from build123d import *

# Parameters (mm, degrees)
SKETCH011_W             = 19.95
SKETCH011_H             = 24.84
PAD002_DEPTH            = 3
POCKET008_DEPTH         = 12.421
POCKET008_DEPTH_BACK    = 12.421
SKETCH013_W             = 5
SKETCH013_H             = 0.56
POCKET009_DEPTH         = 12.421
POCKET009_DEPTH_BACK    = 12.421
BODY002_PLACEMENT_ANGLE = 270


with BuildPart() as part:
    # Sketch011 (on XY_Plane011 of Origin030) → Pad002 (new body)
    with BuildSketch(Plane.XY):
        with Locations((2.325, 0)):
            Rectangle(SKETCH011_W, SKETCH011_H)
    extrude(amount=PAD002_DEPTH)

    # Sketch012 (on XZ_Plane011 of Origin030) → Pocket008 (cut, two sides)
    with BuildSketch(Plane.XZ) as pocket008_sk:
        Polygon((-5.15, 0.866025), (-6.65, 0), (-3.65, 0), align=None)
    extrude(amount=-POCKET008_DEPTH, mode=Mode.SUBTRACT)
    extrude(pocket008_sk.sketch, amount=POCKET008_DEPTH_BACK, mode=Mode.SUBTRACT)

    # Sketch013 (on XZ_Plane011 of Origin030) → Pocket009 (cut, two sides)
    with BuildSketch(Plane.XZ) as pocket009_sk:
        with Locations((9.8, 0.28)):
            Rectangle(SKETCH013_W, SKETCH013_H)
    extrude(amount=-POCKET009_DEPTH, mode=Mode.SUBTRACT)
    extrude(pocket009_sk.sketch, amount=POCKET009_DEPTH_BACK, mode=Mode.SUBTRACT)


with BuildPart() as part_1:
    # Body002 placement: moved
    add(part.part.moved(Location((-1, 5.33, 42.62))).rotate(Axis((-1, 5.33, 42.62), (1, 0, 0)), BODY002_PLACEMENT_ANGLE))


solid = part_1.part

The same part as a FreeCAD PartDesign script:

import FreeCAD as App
import Part
import Sketcher
from FreeCAD import Vector
Q = App.Units.Quantity

doc = App.newDocument("Part")
params = doc.addObject("Spreadsheet::Sheet", "Params")
for row, (alias, value) in enumerate([
    ("sketch1_width", "19.95 mm"),
    ("sketch1_height", "24.84 mm"),
    ("pad1_length", "3 mm"),
    ("sketch2_width", "3 mm"),
    ("sketch3_width", "5 mm"),
    ("sketch3_height", "0.56 mm"),
], start=1):
    params.set(f"A{row}", alias)
    params.set(f"B{row}", "=" + value)
    params.setAlias(f"B{row}", alias)

body = doc.addObject("PartDesign::Body", "Body")

# Sketch on XY plane
sketch1 = doc.addObject("Sketcher::SketchObject", "Sketch")
body.addObject(sketch1)
sketch1.AttachmentSupport = (doc.XY_Plane, [""])
sketch1.MapMode = "FlatFace"
sketch1.addGeometry([
    Part.LineSegment(Vector(-8, 12, 0), Vector(-8, -12, 0)),
    Part.LineSegment(Vector(-8, -12, 0), Vector(12, -12, 0)),
    Part.LineSegment(Vector(12, -12, 0), Vector(12, 12, 0)),
    Part.LineSegment(Vector(12, 12, 0), Vector(-8, 12, 0)),
], False)
sketch1.addConstraint([
    Sketcher.Constraint("Coincident", 0, 2, 1, 1),
    Sketcher.Constraint("Coincident", 1, 2, 2, 1),
    Sketcher.Constraint("Coincident", 2, 2, 3, 1),
    Sketcher.Constraint("Coincident", 3, 2, 0, 1),
    Sketcher.Constraint("Vertical", 0),
    Sketcher.Constraint("Horizontal", 1),
    Sketcher.Constraint("Vertical", 2),
    Sketcher.Constraint("Horizontal", 3),
    Sketcher.Constraint("DistanceX", 1, 1, 1, 2, 19.95),
    Sketcher.Constraint("DistanceY", 0, 2, 0, 1, 24.84),
    Sketcher.Constraint("DistanceX", -1, 1, 1, 2, 12.3),
    Sketcher.Constraint("DistanceY", 0, 2, -1, 1, 12.42),
])
sketch1.setExpression("Constraints[8]", "Params.sketch1_width")
sketch1.setExpression("Constraints[9]", "Params.sketch1_height")
pad1 = doc.addObject("PartDesign::Pad", "Pad")
body.addObject(pad1)
pad1.Profile = sketch1
pad1.setExpression("Length", "Params.pad1_length")

# Sketch on XZ plane
sketch2 = doc.addObject("Sketcher::SketchObject", "Sketch001")
body.addObject(sketch2)
sketch2.AttachmentSupport = (doc.XZ_Plane, [""])
sketch2.MapMode = "FlatFace"
sketch2.addGeometry([
    Part.LineSegment(Vector(-5.2, 0.9, 0), Vector(-6.7, 0, 0)),
    Part.LineSegment(Vector(-6.7, 0, 0), Vector(-3.6, 0, 0)),
    Part.LineSegment(Vector(-3.6, 0, 0), Vector(-5.2, 0.9, 0)),
], False)
sketch2.addConstraint([
    Sketcher.Constraint("Coincident", 0, 2, 1, 1),
    Sketcher.Constraint("Coincident", 1, 2, 2, 1),
    Sketcher.Constraint("Coincident", 2, 2, 0, 1),
    Sketcher.Constraint("Horizontal", 1),
    Sketcher.Constraint("PointOnObject", 0, 2, -1),
    Sketcher.Constraint("Equal", 0, 2),
    Sketcher.Constraint("DistanceX", 1, 1, 1, 2, 3.0),
    Sketcher.Constraint("Angle", 0, Q("-150.000012 deg")),
    Sketcher.Constraint("DistanceX", 0, 2, -1, 1, 6.65),
])
sketch2.setExpression("Constraints[6]", "Params.sketch2_width")
pocket1 = doc.addObject("PartDesign::Pocket", "Pocket")
body.addObject(pocket1)
pocket1.Profile = sketch2
pocket1.Type = "ThroughAll"
pocket1.Midplane = True

# Sketch on XZ plane
sketch3 = doc.addObject("Sketcher::SketchObject", "Sketch002")
body.addObject(sketch3)
sketch3.AttachmentSupport = (doc.XZ_Plane, [""])
sketch3.MapMode = "FlatFace"
sketch3.addGeometry([
    Part.LineSegment(Vector(7.3, 0.6, 0), Vector(7.3, 0, 0)),
    Part.LineSegment(Vector(7.3, 0, 0), Vector(12.3, 0, 0)),
    Part.LineSegment(Vector(12.3, 0, 0), Vector(12.3, 0.6, 0)),
    Part.LineSegment(Vector(12.3, 0.6, 0), Vector(7.3, 0.6, 0)),
], False)
sketch3.addConstraint([
    Sketcher.Constraint("Coincident", 0, 2, 1, 1),
    Sketcher.Constraint("Coincident", 1, 2, 2, 1),
    Sketcher.Constraint("Coincident", 2, 2, 3, 1),
    Sketcher.Constraint("Coincident", 3, 2, 0, 1),
    Sketcher.Constraint("Vertical", 0),
    Sketcher.Constraint("Horizontal", 1),
    Sketcher.Constraint("Vertical", 2),
    Sketcher.Constraint("Horizontal", 3),
    Sketcher.Constraint("PointOnObject", 0, 2, -1),
    Sketcher.Constraint("DistanceX", 1, 1, 1, 2, 5.0),
    Sketcher.Constraint("DistanceY", 0, 2, 0, 1, 0.56),
    Sketcher.Constraint("DistanceX", -1, 1, 0, 2, 7.3),
])
sketch3.setExpression("Constraints[9]", "Params.sketch3_width")
sketch3.setExpression("Constraints[10]", "Params.sketch3_height")
pocket2 = doc.addObject("PartDesign::Pocket", "Pocket001")
body.addObject(pocket2)
pocket2.Profile = sketch3
pocket2.Type = "ThroughAll"
pocket2.Midplane = True
body2 = doc.addObject("PartDesign::Body", "Body001")
doc.recompute()

body.Placement = App.Placement(Vector(-1, 5.33, 42.62), App.Rotation(Vector(1, 0, 0), 270))
boolean = doc.addObject("PartDesign::Boolean", "Boolean")
body2.addObject(boolean)
boolean.Type = "Fuse"
boolean.addObjects([body])

doc.recompute()
